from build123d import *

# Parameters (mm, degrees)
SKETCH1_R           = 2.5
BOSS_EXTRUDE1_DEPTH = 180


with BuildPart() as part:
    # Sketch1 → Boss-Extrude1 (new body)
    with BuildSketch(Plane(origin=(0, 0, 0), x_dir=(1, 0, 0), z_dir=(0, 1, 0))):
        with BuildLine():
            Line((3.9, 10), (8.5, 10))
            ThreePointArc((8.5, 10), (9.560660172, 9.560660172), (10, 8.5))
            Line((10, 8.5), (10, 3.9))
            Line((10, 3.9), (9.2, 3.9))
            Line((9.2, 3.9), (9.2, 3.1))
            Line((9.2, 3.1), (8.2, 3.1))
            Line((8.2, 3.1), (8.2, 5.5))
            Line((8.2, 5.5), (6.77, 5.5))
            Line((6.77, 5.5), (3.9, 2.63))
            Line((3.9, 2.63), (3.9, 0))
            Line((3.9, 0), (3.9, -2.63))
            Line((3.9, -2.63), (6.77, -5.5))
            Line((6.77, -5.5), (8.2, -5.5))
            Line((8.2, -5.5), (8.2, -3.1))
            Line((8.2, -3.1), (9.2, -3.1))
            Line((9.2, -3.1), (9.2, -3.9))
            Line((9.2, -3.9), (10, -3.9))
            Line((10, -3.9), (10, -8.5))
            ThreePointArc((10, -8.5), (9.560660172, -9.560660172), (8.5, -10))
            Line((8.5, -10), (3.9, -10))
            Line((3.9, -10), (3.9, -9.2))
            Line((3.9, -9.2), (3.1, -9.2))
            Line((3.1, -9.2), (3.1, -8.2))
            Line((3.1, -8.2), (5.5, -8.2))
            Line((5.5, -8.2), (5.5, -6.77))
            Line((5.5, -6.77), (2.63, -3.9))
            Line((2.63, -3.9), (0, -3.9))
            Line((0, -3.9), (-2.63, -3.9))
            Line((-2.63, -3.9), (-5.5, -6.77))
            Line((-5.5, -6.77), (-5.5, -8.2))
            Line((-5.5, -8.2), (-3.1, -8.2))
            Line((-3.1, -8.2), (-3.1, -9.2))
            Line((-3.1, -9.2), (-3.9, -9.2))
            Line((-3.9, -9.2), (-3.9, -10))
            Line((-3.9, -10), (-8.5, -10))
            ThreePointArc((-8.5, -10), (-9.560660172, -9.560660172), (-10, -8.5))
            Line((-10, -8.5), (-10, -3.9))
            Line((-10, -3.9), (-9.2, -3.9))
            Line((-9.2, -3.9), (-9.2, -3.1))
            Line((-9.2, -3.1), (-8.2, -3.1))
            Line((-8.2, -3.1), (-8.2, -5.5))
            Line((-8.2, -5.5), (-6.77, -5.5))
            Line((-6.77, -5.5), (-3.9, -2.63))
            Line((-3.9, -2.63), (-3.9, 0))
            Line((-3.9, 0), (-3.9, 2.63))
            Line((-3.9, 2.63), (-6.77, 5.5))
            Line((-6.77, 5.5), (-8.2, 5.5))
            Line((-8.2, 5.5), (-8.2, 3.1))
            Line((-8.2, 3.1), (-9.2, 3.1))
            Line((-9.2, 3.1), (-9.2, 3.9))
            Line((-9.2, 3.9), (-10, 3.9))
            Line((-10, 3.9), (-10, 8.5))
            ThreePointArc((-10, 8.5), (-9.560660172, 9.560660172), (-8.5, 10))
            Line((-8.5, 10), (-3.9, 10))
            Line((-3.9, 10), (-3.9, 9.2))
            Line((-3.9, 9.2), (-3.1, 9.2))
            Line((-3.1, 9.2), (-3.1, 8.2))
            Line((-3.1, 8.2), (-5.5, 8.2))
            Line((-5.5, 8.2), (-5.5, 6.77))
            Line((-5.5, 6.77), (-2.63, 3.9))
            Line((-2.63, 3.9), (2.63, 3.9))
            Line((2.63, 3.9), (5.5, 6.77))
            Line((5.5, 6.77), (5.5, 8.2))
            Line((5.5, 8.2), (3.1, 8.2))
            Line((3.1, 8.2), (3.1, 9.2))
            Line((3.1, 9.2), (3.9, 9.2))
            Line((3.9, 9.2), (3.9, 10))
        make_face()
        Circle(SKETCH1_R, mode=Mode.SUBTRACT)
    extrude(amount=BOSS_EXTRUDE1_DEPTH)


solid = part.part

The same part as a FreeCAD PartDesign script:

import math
import FreeCAD as App
import Part
import Sketcher

V = App.Vector
Q = App.Units.Quantity

doc = App.newDocument("Part")
body = doc.addObject("PartDesign::Body", "Body")

# Sketch on XZ plane
sketch1 = body.newObject("Sketcher::SketchObject", "Sketch")
sketch1.AttachmentSupport = (doc.getObject("XZ_Plane"), [""])
sketch1.MapMode = "FlatFace"
sketch1.addGeometry(Part.LineSegment(V(8.5, -10, 0), V(3.9, -10, 0)), False)
sketch1.addGeometry(Part.LineSegment(V(3.9, -10, 0), V(3.9, -9.2, 0)), False)
sketch1.addGeometry(Part.LineSegment(V(3.9, -9.2, 0), V(3.1, -9.2, 0)), False)
sketch1.addGeometry(Part.LineSegment(V(3.1, -9.2, 0), V(3.1, -8.2, 0)), False)
sketch1.addGeometry(Part.LineSegment(V(3.1, -8.2, 0), V(5.5, -8.2, 0)), False)
sketch1.addGeometry(Part.LineSegment(V(5.5, -8.2, 0), V(5.5, -6.8, 0)), False)
sketch1.addGeometry(Part.LineSegment(V(5.5, -6.8, 0), V(2.6, -3.9, 0)), False)
sketch1.addGeometry(Part.LineSegment(V(2.6, -3.9, 0), V(-2.6, -3.9, 0)), False)
sketch1.addGeometry(Part.LineSegment(V(-2.6, -3.9, 0), V(-5.5, -6.8, 0)), False)
sketch1.addGeometry(Part.LineSegment(V(-5.5, -6.8, 0), V(-5.5, -8.2, 0)), False)
sketch1.addGeometry(Part.LineSegment(V(-5.5, -8.2, 0), V(-3.1, -8.2, 0)), False)
sketch1.addGeometry(Part.LineSegment(V(-3.1, -8.2, 0), V(-3.1, -9.2, 0)), False)
sketch1.addGeometry(Part.LineSegment(V(-3.1, -9.2, 0), V(-3.9, -9.2, 0)), False)
sketch1.addGeometry(Part.LineSegment(V(-3.9, -9.2, 0), V(-3.9, -10, 0)), False)
sketch1.addGeometry(Part.LineSegment(V(-3.9, -10, 0), V(-8.5, -10, 0)), False)
sketch1.addGeometry(Part.ArcOfCircle(Part.Circle(V(-8.5, -8.5, 0), V(0, 0, 1), 1.5), math.radians(180), math.radians(270)), False)
sketch1.addGeometry(Part.LineSegment(V(-10, -8.5, 0), V(-10, -3.9, 0)), False)
sketch1.addGeometry(Part.LineSegment(V(-10, -3.9, 0), V(-9.2, -3.9, 0)), False)
sketch1.addGeometry(Part.LineSegment(V(-9.2, -3.9, 0), V(-9.2, -3.1, 0)), False)
sketch1.addGeometry(Part.LineSegment(V(-9.2, -3.1, 0), V(-8.2, -3.1, 0)), False)
sketch1.addGeometry(Part.LineSegment(V(-8.2, -3.1, 0), V(-8.2, -5.5, 0)), False)
sketch1.addGeometry(Part.LineSegment(V(-8.2, -5.5, 0), V(-6.8, -5.5, 0)), False)
sketch1.addGeometry(Part.LineSegment(V(-6.8, -5.5, 0), V(-3.9, -2.6, 0)), False)
sketch1.addGeometry(Part.LineSegment(V(-3.9, -2.6, 0), V(-3.9, 2.6, 0)), False)
sketch1.addGeometry(Part.LineSegment(V(-3.9, 2.6, 0), V(-6.8, 5.5, 0)), False)
sketch1.addGeometry(Part.LineSegment(V(-6.8, 5.5, 0), V(-8.2, 5.5, 0)), False)
sketch1.addGeometry(Part.LineSegment(V(-8.2, 5.5, 0), V(-8.2, 3.1, 0)), False)
sketch1.addGeometry(Part.LineSegment(V(-8.2, 3.1, 0), V(-9.2, 3.1, 0)), False)
sketch1.addGeometry(Part.LineSegment(V(-9.2, 3.1, 0), V(-9.2, 3.9, 0)), False)
sketch1.addGeometry(Part.LineSegment(V(-9.2, 3.9, 0), V(-10, 3.9, 0)), False)
sketch1.addGeometry(Part.LineSegment(V(-10, 3.9, 0), V(-10, 8.5, 0)), False)
sketch1.addGeometry(Part.ArcOfCircle(Part.Circle(V(-8.5, 8.5, 0), V(0, 0, 1), 1.5), math.radians(90), math.radians(180)), False)
sketch1.addGeometry(Part.LineSegment(V(-8.5, 10, 0), V(-3.9, 10, 0)), False)
sketch1.addGeometry(Part.LineSegment(V(-3.9, 10, 0), V(-3.9, 9.2, 0)), False)
sketch1.addGeometry(Part.LineSegment(V(-3.9, 9.2, 0), V(-3.1, 9.2, 0)), False)
sketch1.addGeometry(Part.LineSegment(V(-3.1, 9.2, 0), V(-3.1, 8.2, 0)), False)
sketch1.addGeometry(Part.LineSegment(V(-3.1, 8.2, 0), V(-5.5, 8.2, 0)), False)
sketch1.addGeometry(Part.LineSegment(V(-5.5, 8.2, 0), V(-5.5, 6.8, 0)), False)
sketch1.addGeometry(Part.LineSegment(V(-5.5, 6.8, 0), V(-2.6, 3.9, 0)), False)
sketch1.addGeometry(Part.LineSegment(V(-2.6, 3.9, 0), V(2.6, 3.9, 0)), False)
sketch1.addGeometry(Part.LineSegment(V(2.6, 3.9, 0), V(5.5, 6.8, 0)), False)
sketch1.addGeometry(Part.LineSegment(V(5.5, 6.8, 0), V(5.5, 8.2, 0)), False)
sketch1.addGeometry(Part.LineSegment(V(5.5, 8.2, 0), V(3.1, 8.2, 0)), False)
sketch1.addGeometry(Part.LineSegment(V(3.1, 8.2, 0), V(3.1, 9.2, 0)), False)
sketch1.addGeometry(Part.LineSegment(V(3.1, 9.2, 0), V(3.9, 9.2, 0)), False)
sketch1.addGeometry(Part.LineSegment(V(3.9, 9.2, 0), V(3.9, 10, 0)), False)
sketch1.addGeometry(Part.LineSegment(V(3.9, 10, 0), V(8.5, 10, 0)), False)
sketch1.addGeometry(Part.ArcOfCircle(Part.Circle(V(8.5, 8.5, 0), V(0, 0, 1), 1.5), math.radians(0), math.radians(90)), False)
sketch1.addGeometry(Part.LineSegment(V(10, 8.5, 0), V(10, 3.9, 0)), False)
sketch1.addGeometry(Part.LineSegment(V(10, 3.9, 0), V(9.2, 3.9, 0)), False)
sketch1.addGeometry(Part.LineSegment(V(9.2, 3.9, 0), V(9.2, 3.1, 0)), False)
sketch1.addGeometry(Part.LineSegment(V(9.2, 3.1, 0), V(8.2, 3.1, 0)), False)
sketch1.addGeometry(Part.LineSegment(V(8.2, 3.1, 0), V(8.2, 5.5, 0)), False)
sketch1.addGeometry(Part.LineSegment(V(8.2, 5.5, 0), V(6.8, 5.5, 0)), False)
sketch1.addGeometry(Part.LineSegment(V(6.8, 5.5, 0), V(3.9, 2.6, 0)), False)
sketch1.addGeometry(Part.LineSegment(V(3.9, 2.6, 0), V(3.9, -2.6, 0)), False)
sketch1.addGeometry(Part.LineSegment(V(3.9, -2.6, 0), V(6.8, -5.5, 0)), False)
sketch1.addGeometry(Part.LineSegment(V(6.8, -5.5, 0), V(8.2, -5.5, 0)), False)
sketch1.addGeometry(Part.LineSegment(V(8.2, -5.5, 0), V(8.2, -3.1, 0)), False)
sketch1.addGeometry(Part.LineSegment(V(8.2, -3.1, 0), V(9.2, -3.1, 0)), False)
sketch1.addGeometry(Part.LineSegment(V(9.2, -3.1, 0), V(9.2, -3.9, 0)), False)
sketch1.addGeometry(Part.LineSegment(V(9.2, -3.9, 0), V(10, -3.9, 0)), False)
sketch1.addGeometry(Part.LineSegment(V(10, -3.9, 0), V(10, -8.5, 0)), False)
sketch1.addGeometry(Part.ArcOfCircle(Part.Circle(V(8.5, -8.5, 0), V(0, 0, 1), 1.5), math.radians(-90), math.radians(0)), False)
sketch1.addGeometry(Part.Circle(V(0, 0, 0), V(0, 0, 1), 2.5), False)
sketch1.addConstraint(Sketcher.Constraint("Coincident", 0, 2, 1, 1))
sketch1.addConstraint(Sketcher.Constraint("Coincident", 1, 2, 2, 1))
sketch1.addConstraint(Sketcher.Constraint("Coincident", 2, 2, 3, 1))
sketch1.addConstraint(Sketcher.Constraint("Coincident", 3, 2, 4, 1))
sketch1.addConstraint(Sketcher.Constraint("Coincident", 4, 2, 5, 1))
sketch1.addConstraint(Sketcher.Constraint("Coincident", 5, 2, 6, 1))
sketch1.addConstraint(Sketcher.Constraint("Coincident", 6, 2, 7, 1))
sketch1.addConstraint(Sketcher.Constraint("Coincident", 7, 2, 8, 1))
sketch1.addConstraint(Sketcher.Constraint("Coincident", 8, 2, 9, 1))
sketch1.addConstraint(Sketcher.Constraint("Coincident", 9, 2, 10, 1))
sketch1.addConstraint(Sketcher.Constraint("Coincident", 10, 2, 11, 1))
sketch1.addConstraint(Sketcher.Constraint("Coincident", 11, 2, 12, 1))
sketch1.addConstraint(Sketcher.Constraint("Coincident", 12, 2, 13, 1))
sketch1.addConstraint(Sketcher.Constraint("Coincident", 13, 2, 14, 1))
sketch1.addConstraint(Sketcher.Constraint("Tangent", 14, 2, 15, 2))
sketch1.addConstraint(Sketcher.Constraint("Tangent", 15, 1, 16, 1))
sketch1.addConstraint(Sketcher.Constraint("Coincident", 16, 2, 17, 1))
sketch1.addConstraint(Sketcher.Constraint("Coincident", 17, 2, 18, 1))
sketch1.addConstraint(Sketcher.Constraint("Coincident", 18, 2, 19, 1))
sketch1.addConstraint(Sketcher.Constraint("Coincident", 19, 2, 20, 1))
sketch1.addConstraint(Sketcher.Constraint("Coincident", 20, 2, 21, 1))
sketch1.addConstraint(Sketcher.Constraint("Coincident", 21, 2, 22, 1))
sketch1.addConstraint(Sketcher.Constraint("Coincident", 22, 2, 23, 1))
sketch1.addConstraint(Sketcher.Constraint("Coincident", 23, 2, 24, 1))
sketch1.addConstraint(Sketcher.Constraint("Coincident", 24, 2, 25, 1))
sketch1.addConstraint(Sketcher.Constraint("Coincident", 25, 2, 26, 1))
sketch1.addConstraint(Sketcher.Constraint("Coincident", 26, 2, 27, 1))
sketch1.addConstraint(Sketcher.Constraint("Coincident", 27, 2, 28, 1))
sketch1.addConstraint(Sketcher.Constraint("Coincident", 28, 2, 29, 1))
sketch1.addConstraint(Sketcher.Constraint("Coincident", 29, 2, 30, 1))
sketch1.addConstraint(Sketcher.Constraint("Tangent", 30, 2, 31, 2))
sketch1.addConstraint(Sketcher.Constraint("Tangent", 31, 1, 32, 1))
sketch1.addConstraint(Sketcher.Constraint("Coincident", 32, 2, 33, 1))
sketch1.addConstraint(Sketcher.Constraint("Coincident", 33, 2, 34, 1))
sketch1.addConstraint(Sketcher.Constraint("Coincident", 34, 2, 35, 1))
sketch1.addConstraint(Sketcher.Constraint("Coincident", 35, 2, 36, 1))
sketch1.addConstraint(Sketcher.Constraint("Coincident", 36, 2, 37, 1))
sketch1.addConstraint(Sketcher.Constraint("Coincident", 37, 2, 38, 1))
sketch1.addConstraint(Sketcher.Constraint("Coincident", 38, 2, 39, 1))
sketch1.addConstraint(Sketcher.Constraint("Coincident", 39, 2, 40, 1))
sketch1.addConstraint(Sketcher.Constraint("Coincident", 40, 2, 41, 1))
sketch1.addConstraint(Sketcher.Constraint("Coincident", 41, 2, 42, 1))
sketch1.addConstraint(Sketcher.Constraint("Coincident", 42, 2, 43, 1))
sketch1.addConstraint(Sketcher.Constraint("Coincident", 43, 2, 44, 1))
sketch1.addConstraint(Sketcher.Constraint("Coincident", 44, 2, 45, 1))
sketch1.addConstraint(Sketcher.Constraint("Coincident", 45, 2, 46, 1))
sketch1.addConstraint(Sketcher.Constraint("Tangent", 46, 2, 47, 2))
sketch1.addConstraint(Sketcher.Constraint("Tangent", 47, 1, 48, 1))
sketch1.addConstraint(Sketcher.Constraint("Coincident", 48, 2, 49, 1))
sketch1.addConstraint(Sketcher.Constraint("Coincident", 49, 2, 50, 1))
sketch1.addConstraint(Sketcher.Constraint("Coincident", 50, 2, 51, 1))
sketch1.addConstraint(Sketcher.Constraint("Coincident", 51, 2, 52, 1))
sketch1.addConstraint(Sketcher.Constraint("Coincident", 52, 2, 53, 1))
sketch1.addConstraint(Sketcher.Constraint("Coincident", 53, 2, 54, 1))
sketch1.addConstraint(Sketcher.Constraint("Coincident", 54, 2, 55, 1))
sketch1.addConstraint(Sketcher.Constraint("Coincident", 55, 2, 56, 1))
sketch1.addConstraint(Sketcher.Constraint("Coincident", 56, 2, 57, 1))
sketch1.addConstraint(Sketcher.Constraint("Coincident", 57, 2, 58, 1))
sketch1.addConstraint(Sketcher.Constraint("Coincident", 58, 2, 59, 1))
sketch1.addConstraint(Sketcher.Constraint("Coincident", 59, 2, 60, 1))
sketch1.addConstraint(Sketcher.Constraint("Coincident", 60, 2, 61, 1))
sketch1.addConstraint(Sketcher.Constraint("Coincident", 61, 2, 62, 1))
sketch1.addConstraint(Sketcher.Constraint("Tangent", 62, 2, 63, 2))
sketch1.addConstraint(Sketcher.Constraint("Tangent", 63, 1, 0, 1))
sketch1.addConstraint(Sketcher.Constraint("Horizontal", 0))
sketch1.addConstraint(Sketcher.Constraint("Vertical", 1))
sketch1.addConstraint(Sketcher.Constraint("Horizontal", 2))
sketch1.addConstraint(Sketcher.Constraint("Vertical", 3))
sketch1.addConstraint(Sketcher.Constraint("Horizontal", 4))
sketch1.addConstraint(Sketcher.Constraint("Vertical", 5))
sketch1.addConstraint(Sketcher.Constraint("Horizontal", 7))
sketch1.addConstraint(Sketcher.Constraint("Vertical", 9))
sketch1.addConstraint(Sketcher.Constraint("Horizontal", 10))
sketch1.addConstraint(Sketcher.Constraint("Vertical", 11))
sketch1.addConstraint(Sketcher.Constraint("Horizontal", 12))
sketch1.addConstraint(Sketcher.Constraint("Vertical", 13))
sketch1.addConstraint(Sketcher.Constraint("Horizontal", 14))
sketch1.addConstraint(Sketcher.Constraint("Vertical", 16))
sketch1.addConstraint(Sketcher.Constraint("Horizontal", 17))
sketch1.addConstraint(Sketcher.Constraint("Vertical", 18))
sketch1.addConstraint(Sketcher.Constraint("Horizontal", 19))
sketch1.addConstraint(Sketcher.Constraint("Vertical", 20))
sketch1.addConstraint(Sketcher.Constraint("Horizontal", 21))
sketch1.addConstraint(Sketcher.Constraint("Vertical", 23))
sketch1.addConstraint(Sketcher.Constraint("Horizontal", 25))
sketch1.addConstraint(Sketcher.Constraint("Vertical", 26))
sketch1.addConstraint(Sketcher.Constraint("Horizontal", 27))
sketch1.addConstraint(Sketcher.Constraint("Vertical", 28))
sketch1.addConstraint(Sketcher.Constraint("Horizontal", 29))
sketch1.addConstraint(Sketcher.Constraint("Vertical", 30))
sketch1.addConstraint(Sketcher.Constraint("Horizontal", 32))
sketch1.addConstraint(Sketcher.Constraint("Vertical", 33))
sketch1.addConstraint(Sketcher.Constraint("Horizontal", 34))
sketch1.addConstraint(Sketcher.Constraint("Vertical", 35))
sketch1.addConstraint(Sketcher.Constraint("Horizontal", 36))
sketch1.addConstraint(Sketcher.Constraint("Vertical", 37))
sketch1.addConstraint(Sketcher.Constraint("Horizontal", 39))
sketch1.addConstraint(Sketcher.Constraint("Vertical", 41))
sketch1.addConstraint(Sketcher.Constraint("Horizontal", 42))
sketch1.addConstraint(Sketcher.Constraint("Vertical", 43))
sketch1.addConstraint(Sketcher.Constraint("Horizontal", 44))
sketch1.addConstraint(Sketcher.Constraint("Vertical", 45))
sketch1.addConstraint(Sketcher.Constraint("Horizontal", 46))
sketch1.addConstraint(Sketcher.Constraint("Vertical", 48))
sketch1.addConstraint(Sketcher.Constraint("Horizontal", 49))
sketch1.addConstraint(Sketcher.Constraint("Vertical", 50))
sketch1.addConstraint(Sketcher.Constraint("Horizontal", 51))
sketch1.addConstraint(Sketcher.Constraint("Vertical", 52))
sketch1.addConstraint(Sketcher.Constraint("Horizontal", 53))
sketch1.addConstraint(Sketcher.Constraint("Vertical", 55))
sketch1.addConstraint(Sketcher.Constraint("Horizontal", 57))
sketch1.addConstraint(Sketcher.Constraint("Vertical", 58))
sketch1.addConstraint(Sketcher.Constraint("Horizontal", 59))
sketch1.addConstraint(Sketcher.Constraint("Vertical", 60))
sketch1.addConstraint(Sketcher.Constraint("Horizontal", 61))
sketch1.addConstraint(Sketcher.Constraint("Vertical", 62))
sketch1.addConstraint(Sketcher.Constraint("Coincident", 64, 3, -1, 1))
sketch1.addConstraint(Sketcher.Constraint("Equal", 15, 31))
sketch1.addConstraint(Sketcher.Constraint("Equal", 31, 47))
sketch1.addConstraint(Sketcher.Constraint("Equal", 47, 63))
sketch1.addConstraint(Sketcher.Constraint("Symmetric", 15, 3, 47, 3, -1, 1))
sketch1.addConstraint(Sketcher.Constraint("Symmetric", 31, 3, 63, 3, -1, 1))
sketch1.addConstraint(Sketcher.Constraint("Symmetric", 1, 2, 33, 2, -1, 1))
sketch1.addConstraint(Sketcher.Constraint("Symmetric", 3, 2, 35, 2, -1, 1))
sketch1.addConstraint(Sketcher.Constraint("Symmetric", 5, 2, 37, 2, -1, 1))
sketch1.addConstraint(Sketcher.Constraint("Symmetric", 6, 2, 38, 2, -1, 1))
sketch1.addConstraint(Sketcher.Constraint("Symmetric", 8, 2, 40, 2, -1, 1))
sketch1.addConstraint(Sketcher.Constraint("Symmetric", 10, 2, 42, 2, -1, 1))
sketch1.addConstraint(Sketcher.Constraint("Symmetric", 12, 2, 44, 2, -1, 1))
sketch1.addConstraint(Sketcher.Constraint("Symmetric", 17, 2, 49, 2, -1, 1))
sketch1.addConstraint(Sketcher.Constraint("Symmetric", 19, 2, 51, 2, -1, 1))
sketch1.addConstraint(Sketcher.Constraint("Symmetric", 21, 2, 53, 2, -1, 1))
sketch1.addConstraint(Sketcher.Constraint("Symmetric", 22, 2, 54, 2, -1, 1))
sketch1.addConstraint(Sketcher.Constraint("Symmetric", 24, 2, 56, 2, -1, 1))
sketch1.addConstraint(Sketcher.Constraint("Symmetric", 26, 2, 58, 2, -1, 1))
sketch1.addConstraint(Sketcher.Constraint("Symmetric", 28, 2, 60, 2, -1, 1))
sketch1.addConstraint(Sketcher.Constraint("Symmetric", 31, 3, 47, 3, -2))
sketch1.addConstraint(Sketcher.Constraint("Symmetric", 5, 2, 8, 2, -2))
sketch1.addConstraint(Sketcher.Constraint("Symmetric", 3, 2, 10, 2, -2))
sketch1.addConstraint(Sketcher.Constraint("Symmetric", 1, 2, 12, 2, -2))
sketch1.addConstraint(Sketcher.Constraint("Symmetric", 28, 2, 49, 2, -2))
sketch1.addConstraint(Sketcher.Constraint("Symmetric", 26, 2, 51, 2, -2))
sketch1.addConstraint(Sketcher.Constraint("Symmetric", 24, 2, 53, 2, -2))
sketch1.addConstraint(Sketcher.Constraint("Perpendicular", 6, 8))
sketch1.addConstraint(Sketcher.Constraint("Parallel", 8, 22))
sketch1.addConstraint(Sketcher.Constraint("Perpendicular", 22, 24))
sketch1.addConstraint(Sketcher.Constraint("Perpendicular", 38, 40))
sketch1.addConstraint(Sketcher.Constraint("Perpendicular", 54, 56))
sketch1.addConstraint(Sketcher.Constraint("Horizontal", 7, 2, 16, 2))
sketch1.addConstraint(Sketcher.Constraint("Horizontal", 23, 2, 54, 2))
sketch1.addConstraint(Sketcher.Constraint("Vertical", 13, 2, 22, 2))
sketch1.addConstraint(Sketcher.Constraint("Equal", 12, 17))
sketch1.addConstraint(Sketcher.Constraint("Equal", 61, 1))
sketch1.addConstraint(Sketcher.Constraint("Equal", 59, 3))
sketch1.addConstraint(Sketcher.Constraint("Equal", 57, 5))
sketch1.addConstraint(Sketcher.Constraint("Equal", 46, 16))
sketch1.addConstraint(Sketcher.Constraint("Equal", 13, 18))
sketch1.addConstraint(Sketcher.Constraint("Equal", 42, 20))
sketch1.addConstraint(Sketcher.Constraint("Equal", 39, 23))
sketch1.addConstraint(Sketcher.Constraint("Diameter", 64, Q("5 mm")))
sketch1.addConstraint(Sketcher.Constraint("Radius", 15, Q("1.5 mm")))
sketch1.addConstraint(Sketcher.Constraint("DistanceX", 19, 1, 19, 2, Q("1 mm")))
sketch1.addConstraint(Sketcher.Constraint("DistanceX", 0, 2, 0, 1, Q("4.6 mm")))
sketch1.addConstraint(Sketcher.Constraint("DistanceX", 2, 2, 2, 1, Q("0.8 mm")))
sketch1.addConstraint(Sketcher.Constraint("DistanceX", 4, 1, 4, 2, Q("2.4 mm")))
sketch1.addConstraint(Sketcher.Constraint("DistanceY", 0, 2, -1, 1, Q("10 mm")))
sketch1.addConstraint(Sketcher.Constraint("DistanceX", 7, 2, 7, 1, Q("5.26 mm")))
pad1 = body.newObject("PartDesign::Pad", "Pad")
pad1.Profile = sketch1
pad1.Length = 180
pad1.Reversed = True

doc.recompute()
